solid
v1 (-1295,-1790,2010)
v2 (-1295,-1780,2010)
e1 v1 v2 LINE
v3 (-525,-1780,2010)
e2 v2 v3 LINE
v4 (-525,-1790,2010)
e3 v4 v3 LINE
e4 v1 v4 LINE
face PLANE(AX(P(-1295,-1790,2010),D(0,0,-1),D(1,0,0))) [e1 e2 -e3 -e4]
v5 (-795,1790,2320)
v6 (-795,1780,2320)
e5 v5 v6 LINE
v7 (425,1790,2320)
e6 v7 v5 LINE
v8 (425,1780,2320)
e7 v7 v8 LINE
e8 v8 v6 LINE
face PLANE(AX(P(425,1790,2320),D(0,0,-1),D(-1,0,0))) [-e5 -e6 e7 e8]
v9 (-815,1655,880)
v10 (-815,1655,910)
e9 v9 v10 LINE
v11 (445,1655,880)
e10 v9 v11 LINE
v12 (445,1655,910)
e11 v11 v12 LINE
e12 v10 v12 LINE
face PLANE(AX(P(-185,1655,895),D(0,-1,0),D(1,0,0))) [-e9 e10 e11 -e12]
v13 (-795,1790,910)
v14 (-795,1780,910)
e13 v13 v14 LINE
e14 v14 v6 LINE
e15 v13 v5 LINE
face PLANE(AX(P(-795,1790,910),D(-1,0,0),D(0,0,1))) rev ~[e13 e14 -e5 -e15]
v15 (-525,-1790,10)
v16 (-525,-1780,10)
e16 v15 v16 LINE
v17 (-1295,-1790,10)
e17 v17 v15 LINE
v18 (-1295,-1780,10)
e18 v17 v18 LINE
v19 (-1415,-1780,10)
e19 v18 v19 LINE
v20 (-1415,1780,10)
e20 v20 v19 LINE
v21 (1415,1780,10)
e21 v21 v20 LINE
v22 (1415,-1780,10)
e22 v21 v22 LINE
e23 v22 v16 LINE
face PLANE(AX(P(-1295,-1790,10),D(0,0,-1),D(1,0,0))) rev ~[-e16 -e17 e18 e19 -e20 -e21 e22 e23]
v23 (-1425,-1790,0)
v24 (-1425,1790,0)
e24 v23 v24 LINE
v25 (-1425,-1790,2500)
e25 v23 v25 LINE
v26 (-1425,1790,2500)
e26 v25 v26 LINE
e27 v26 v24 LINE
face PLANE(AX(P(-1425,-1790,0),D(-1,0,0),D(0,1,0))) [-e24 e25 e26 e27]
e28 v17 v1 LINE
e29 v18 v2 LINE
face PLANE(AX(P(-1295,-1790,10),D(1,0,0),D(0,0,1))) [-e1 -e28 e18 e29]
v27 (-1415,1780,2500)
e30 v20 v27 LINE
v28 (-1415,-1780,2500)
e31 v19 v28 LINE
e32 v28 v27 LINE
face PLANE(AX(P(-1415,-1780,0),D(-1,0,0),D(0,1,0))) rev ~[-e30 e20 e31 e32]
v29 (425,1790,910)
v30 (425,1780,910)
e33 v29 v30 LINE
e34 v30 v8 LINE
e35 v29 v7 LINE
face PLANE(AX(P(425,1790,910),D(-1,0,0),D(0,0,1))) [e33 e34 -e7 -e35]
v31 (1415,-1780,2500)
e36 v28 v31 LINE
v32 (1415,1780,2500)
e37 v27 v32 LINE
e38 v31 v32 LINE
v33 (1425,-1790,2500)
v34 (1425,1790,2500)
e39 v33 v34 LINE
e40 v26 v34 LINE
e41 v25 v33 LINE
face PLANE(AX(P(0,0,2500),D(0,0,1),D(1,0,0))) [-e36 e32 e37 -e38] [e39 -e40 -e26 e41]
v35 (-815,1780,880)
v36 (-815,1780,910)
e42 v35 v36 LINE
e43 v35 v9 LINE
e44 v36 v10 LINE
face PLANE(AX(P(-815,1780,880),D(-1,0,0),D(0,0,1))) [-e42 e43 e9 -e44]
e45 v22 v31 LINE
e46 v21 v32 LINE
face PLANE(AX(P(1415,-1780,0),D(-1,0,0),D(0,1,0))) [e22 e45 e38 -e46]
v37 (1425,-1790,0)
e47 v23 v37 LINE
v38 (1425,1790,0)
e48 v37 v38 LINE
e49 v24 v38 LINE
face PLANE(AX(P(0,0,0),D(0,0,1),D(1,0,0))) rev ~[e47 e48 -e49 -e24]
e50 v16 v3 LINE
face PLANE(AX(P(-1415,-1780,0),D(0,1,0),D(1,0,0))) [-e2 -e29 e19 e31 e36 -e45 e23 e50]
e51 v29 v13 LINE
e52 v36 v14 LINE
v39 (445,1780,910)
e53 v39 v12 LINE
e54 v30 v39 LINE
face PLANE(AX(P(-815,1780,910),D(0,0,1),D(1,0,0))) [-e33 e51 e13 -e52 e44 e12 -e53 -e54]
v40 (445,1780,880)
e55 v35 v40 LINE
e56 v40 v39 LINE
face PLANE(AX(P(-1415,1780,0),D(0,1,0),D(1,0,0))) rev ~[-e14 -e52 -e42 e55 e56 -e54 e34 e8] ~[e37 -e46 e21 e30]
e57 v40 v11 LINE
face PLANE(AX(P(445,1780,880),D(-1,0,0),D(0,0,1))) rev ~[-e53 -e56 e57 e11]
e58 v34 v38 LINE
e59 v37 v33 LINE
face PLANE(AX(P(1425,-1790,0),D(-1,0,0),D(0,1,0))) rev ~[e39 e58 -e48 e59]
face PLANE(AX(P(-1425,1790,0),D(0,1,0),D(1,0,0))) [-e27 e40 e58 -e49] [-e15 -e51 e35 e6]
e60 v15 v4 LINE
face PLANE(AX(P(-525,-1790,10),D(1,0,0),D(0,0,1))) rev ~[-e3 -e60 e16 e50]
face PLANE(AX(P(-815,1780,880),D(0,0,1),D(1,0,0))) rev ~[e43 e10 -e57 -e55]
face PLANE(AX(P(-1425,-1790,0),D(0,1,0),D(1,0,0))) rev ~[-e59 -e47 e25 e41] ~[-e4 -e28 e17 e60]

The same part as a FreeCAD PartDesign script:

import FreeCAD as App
import Part
import Sketcher

V = App.Vector
Q = App.Units.Quantity


def add_polygon(sketch, points):
    """Adds a closed chain of lines whose ends are joined by coincident constraints."""
    first, n = sketch.GeometryCount, len(points)
    for a, b in zip(points, points[1:] + points[:1]):
        sketch.addGeometry(Part.LineSegment(App.Vector(*a, 0), App.Vector(*b, 0)), False)
    for i in range(n):
        sketch.addConstraint(Sketcher.Constraint("Coincident", first + i, 2, first + (i + 1) % n, 1))

doc = App.newDocument("Part")
body = doc.addObject("PartDesign::Body", "Body")

# Sketch on XY plane
sketch1 = body.newObject("Sketcher::SketchObject", "Sketch")
sketch1.AttachmentSupport = (doc.getObject("XY_Plane"), [""])
sketch1.MapMode = "FlatFace"
add_polygon(sketch1, [(-1425, 1790), (-1425, -1790), (1425, -1790), (1425, 1790)])  # lines 0-3
sketch1.addConstraint([
    Sketcher.Constraint("Vertical", 0),
    Sketcher.Constraint("Horizontal", 1),
    Sketcher.Constraint("Vertical", 2),
    Sketcher.Constraint("Horizontal", 3),
    Sketcher.Constraint("Symmetric", 0, 2, 2, 2, -1, 1),
    Sketcher.Constraint("DistanceX", 1, 1, 1, 2, Q("2850 mm")),
    Sketcher.Constraint("DistanceY", 0, 2, 0, 1, Q("3580 mm")),
])
pad1 = body.newObject("PartDesign::Pad", "Pad")
pad1.Profile = sketch1
pad1.Length = 10

# Sketch on XY plane
sketch2 = body.newObject("Sketcher::SketchObject", "Sketch001")
sketch2.AttachmentSupport = (doc.getObject("XY_Plane"), [""])
sketch2.MapMode = "FlatFace"
add_polygon(sketch2, [(-1425, 1790), (-1425, -1790), (1425, -1790), (1425, 1790)])  # lines 0-3
add_polygon(sketch2, [(1415, -1780), (-1415, -1780), (-1415, 1780), (1415, 1780)])  # lines 4-7
sketch2.addConstraint([
    Sketcher.Constraint("Vertical", 0),
    Sketcher.Constraint("Horizontal", 1),
    Sketcher.Constraint("Vertical", 2),
    Sketcher.Constraint("Horizontal", 3),
    Sketcher.Constraint("Horizontal", 4),
    Sketcher.Constraint("Vertical", 5),
    Sketcher.Constraint("Horizontal", 6),
    Sketcher.Constraint("Vertical", 7),
    Sketcher.Constraint("Symmetric", 0, 2, 2, 2, -1, 1),
    Sketcher.Constraint("Symmetric", 4, 2, 6, 2, -1, 1),
    Sketcher.Constraint("DistanceX", 1, 1, 1, 2, Q("2850 mm")),
    Sketcher.Constraint("DistanceX", 4, 2, 4, 1, Q("2830 mm")),
    Sketcher.Constraint("DistanceY", 0, 2, 0, 1, Q("3580 mm")),
    Sketcher.Constraint("DistanceY", 5, 1, 5, 2, Q("3560 mm")),
])
pad2 = body.newObject("PartDesign::Pad", "Pad001")
pad2.Profile = sketch2
pad2.Length = 2500

# Sketch on XZ plane
sketch3 = body.newObject("Sketcher::SketchObject", "Sketch002")
sketch3.AttachmentSupport = (doc.getObject("XZ_Plane"), [""])
sketch3.MapMode = "FlatFace"
sketch3.AttachmentOffset = App.Placement(V(0, 0, 1790), App.Rotation())
add_polygon(sketch3, [(-1295, 2010), (-1295, 10), (-525, 10), (-525, 2010)])  # lines 0-3
sketch3.addConstraint([
    Sketcher.Constraint("Vertical", 0),
    Sketcher.Constraint("Horizontal", 1),
    Sketcher.Constraint("Vertical", 2),
    Sketcher.Constraint("Horizontal", 3),
    Sketcher.Constraint("DistanceX", 1, 1, 1, 2, Q("770 mm")),
    Sketcher.Constraint("DistanceY", 0, 2, 0, 1, Q("2000 mm")),
    Sketcher.Constraint("DistanceX", 0, 2, -1, 1, Q("1295 mm")),
    Sketcher.Constraint("DistanceY", -1, 1, 0, 2, Q("10 mm")),
])
pocket1 = body.newObject("PartDesign::Pocket", "Pocket")
pocket1.Profile = sketch3
pocket1.Length = 10

# Sketch on XZ plane
sketch4 = body.newObject("Sketcher::SketchObject", "Sketch003")
sketch4.AttachmentSupport = (doc.getObject("XZ_Plane"), [""])
sketch4.MapMode = "FlatFace"
sketch4.AttachmentOffset = App.Placement(V(0, 0, -1790), App.Rotation())
add_polygon(sketch4, [(425, 2320), (425, 910), (-795, 910), (-795, 2320)])  # lines 0-3
sketch4.addConstraint([
    Sketcher.Constraint("Vertical", 0),
    Sketcher.Constraint("Horizontal", 1),
    Sketcher.Constraint("Vertical", 2),
    Sketcher.Constraint("Horizontal", 3),
    Sketcher.Constraint("DistanceX", 1, 2, 1, 1, Q("1220 mm")),
    Sketcher.Constraint("DistanceY", 0, 2, 0, 1, Q("1410 mm")),
    Sketcher.Constraint("DistanceX", -1, 1, 0, 2, Q("425 mm")),
    Sketcher.Constraint("DistanceY", -1, 1, 0, 2, Q("910 mm")),
])
pocket2 = body.newObject("PartDesign::Pocket", "Pocket001")
pocket2.Profile = sketch4
pocket2.Length = 10
pocket2.Reversed = True

# Sketch on XZ plane
sketch5 = body.newObject("Sketcher::SketchObject", "Sketch004")
sketch5.AttachmentSupport = (doc.getObject("XZ_Plane"), [""])
sketch5.MapMode = "FlatFace"
sketch5.AttachmentOffset = App.Placement(V(0, 0, -1780), App.Rotation())
add_polygon(sketch5, [(-815, 910), (-815, 880), (445, 880), (445, 910)])  # lines 0-3
sketch5.addConstraint([
    Sketcher.Constraint("Vertical", 0),
    Sketcher.Constraint("Horizontal", 1),
    Sketcher.Constraint("Vertical", 2),
    Sketcher.Constraint("Horizontal", 3),
    Sketcher.Constraint("DistanceX", 1, 1, 1, 2, Q("1260 mm")),
    Sketcher.Constraint("DistanceY", 0, 2, 0, 1, Q("30 mm")),
    Sketcher.Constraint("DistanceX", 0, 2, -1, 1, Q("815 mm")),
    Sketcher.Constraint("DistanceY", -1, 1, 0, 2, Q("880 mm")),
])
pad3 = body.newObject("PartDesign::Pad", "Pad002")
pad3.Profile = sketch5
pad3.Length = 125

doc.recompute()
